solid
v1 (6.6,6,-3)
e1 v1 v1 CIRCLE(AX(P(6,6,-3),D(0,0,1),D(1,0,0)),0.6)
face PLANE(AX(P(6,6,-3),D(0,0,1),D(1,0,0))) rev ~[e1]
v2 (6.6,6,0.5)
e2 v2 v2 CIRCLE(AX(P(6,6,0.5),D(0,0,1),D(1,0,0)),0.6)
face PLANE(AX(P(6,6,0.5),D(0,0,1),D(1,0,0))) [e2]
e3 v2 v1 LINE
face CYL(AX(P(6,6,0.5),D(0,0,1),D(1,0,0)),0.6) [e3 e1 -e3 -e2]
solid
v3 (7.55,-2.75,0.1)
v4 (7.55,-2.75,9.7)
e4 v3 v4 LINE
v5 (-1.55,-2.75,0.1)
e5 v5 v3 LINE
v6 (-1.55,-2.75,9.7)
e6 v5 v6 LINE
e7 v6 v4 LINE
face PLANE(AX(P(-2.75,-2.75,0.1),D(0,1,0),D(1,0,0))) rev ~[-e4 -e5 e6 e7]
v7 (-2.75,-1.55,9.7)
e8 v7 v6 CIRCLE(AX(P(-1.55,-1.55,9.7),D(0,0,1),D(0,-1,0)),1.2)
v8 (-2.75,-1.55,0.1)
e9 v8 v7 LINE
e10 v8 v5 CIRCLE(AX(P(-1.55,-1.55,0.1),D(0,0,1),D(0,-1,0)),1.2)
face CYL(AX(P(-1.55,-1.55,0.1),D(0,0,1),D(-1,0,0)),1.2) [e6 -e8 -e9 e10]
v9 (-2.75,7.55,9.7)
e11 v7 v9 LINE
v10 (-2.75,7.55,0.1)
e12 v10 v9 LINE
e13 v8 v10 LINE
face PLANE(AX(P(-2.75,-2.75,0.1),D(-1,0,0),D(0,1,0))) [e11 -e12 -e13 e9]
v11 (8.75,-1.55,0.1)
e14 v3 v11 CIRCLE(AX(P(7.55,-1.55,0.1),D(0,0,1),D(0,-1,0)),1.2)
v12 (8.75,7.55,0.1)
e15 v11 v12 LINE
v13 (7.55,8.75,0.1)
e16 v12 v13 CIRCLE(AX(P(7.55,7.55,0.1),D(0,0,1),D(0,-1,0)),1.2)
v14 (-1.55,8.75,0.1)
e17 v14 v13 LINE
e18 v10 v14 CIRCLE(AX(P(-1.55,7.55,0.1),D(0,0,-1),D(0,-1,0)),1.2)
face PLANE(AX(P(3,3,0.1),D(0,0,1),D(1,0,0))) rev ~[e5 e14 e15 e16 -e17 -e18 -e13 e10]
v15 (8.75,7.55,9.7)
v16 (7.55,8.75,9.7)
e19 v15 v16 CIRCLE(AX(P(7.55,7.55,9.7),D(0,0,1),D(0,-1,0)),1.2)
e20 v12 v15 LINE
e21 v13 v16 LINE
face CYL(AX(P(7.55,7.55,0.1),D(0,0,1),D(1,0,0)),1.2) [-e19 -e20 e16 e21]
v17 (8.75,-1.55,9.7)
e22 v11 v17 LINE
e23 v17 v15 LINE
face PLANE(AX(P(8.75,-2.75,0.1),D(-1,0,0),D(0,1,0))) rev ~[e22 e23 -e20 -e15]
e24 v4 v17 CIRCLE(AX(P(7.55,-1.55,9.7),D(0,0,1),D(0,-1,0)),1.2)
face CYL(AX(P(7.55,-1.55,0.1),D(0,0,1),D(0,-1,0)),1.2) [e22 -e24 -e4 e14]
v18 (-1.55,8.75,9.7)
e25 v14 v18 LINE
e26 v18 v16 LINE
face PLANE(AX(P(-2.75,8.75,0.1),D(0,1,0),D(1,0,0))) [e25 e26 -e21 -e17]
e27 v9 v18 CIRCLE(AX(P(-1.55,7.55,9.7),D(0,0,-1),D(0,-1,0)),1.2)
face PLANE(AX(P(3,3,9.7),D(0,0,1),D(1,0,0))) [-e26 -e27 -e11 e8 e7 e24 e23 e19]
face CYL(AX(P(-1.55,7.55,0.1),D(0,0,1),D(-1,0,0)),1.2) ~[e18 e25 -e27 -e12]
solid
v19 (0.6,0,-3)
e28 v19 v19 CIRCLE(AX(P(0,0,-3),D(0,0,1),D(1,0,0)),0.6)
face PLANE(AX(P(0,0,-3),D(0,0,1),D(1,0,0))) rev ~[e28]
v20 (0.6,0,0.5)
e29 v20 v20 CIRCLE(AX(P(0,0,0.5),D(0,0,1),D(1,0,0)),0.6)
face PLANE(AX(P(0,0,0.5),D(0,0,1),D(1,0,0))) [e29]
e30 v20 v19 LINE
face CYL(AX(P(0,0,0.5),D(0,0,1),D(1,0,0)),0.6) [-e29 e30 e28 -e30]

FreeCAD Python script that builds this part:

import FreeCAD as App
import Part
import Sketcher
from FreeCAD import Vector


def edges_at(feature, points):
    """Names of the edges that pass closest to the given points."""
    edges = feature.Shape.Edges
    near = lambda p: min(range(len(edges)), key=lambda i: edges[i].distToShape(Part.Vertex(*p))[0])
    return sorted({f"Edge{near(p) + 1}" for p in points})

doc = App.newDocument("Part")
body = doc.addObject("PartDesign::Body", "Body")
body.AllowCompound = True

# Sketch on XY plane
sketch1 = body.newObject("Sketcher::SketchObject", "Sketch")
sketch1.AttachmentSupport = (doc.getObject("XY_Plane"), [""])
sketch1.MapMode = "FlatFace"
sketch1.AttachmentOffset = App.Placement(Vector(0, 0, 0.5), App.Rotation())
sketch1.addGeometry(Part.Circle(Vector(0, 0, 0), Vector(0, 0, 1), 0.6), False)
sketch1.addGeometry(Part.Circle(Vector(6, 6, 0), Vector(0, 0, 1), 0.6), False)
sketch1.addConstraint(Sketcher.Constraint("Coincident", 0, 3, -1, 1))
sketch1.addConstraint(Sketcher.Constraint("Equal", 0, 1))
sketch1.addConstraint(Sketcher.Constraint("Diameter", 0, 1.2))
sketch1.addConstraint(Sketcher.Constraint("DistanceX", -1, 1, 1, 3, 6.0))
sketch1.addConstraint(Sketcher.Constraint("DistanceY", -1, 1, 1, 3, 6.0))
pad1 = body.newObject("PartDesign::Pad", "Pad")
pad1.Profile = sketch1
pad1.Length = 3.5
pad1.Reversed = True
body2 = doc.addObject("PartDesign::Body", "Body001")

# Sketch on XY plane
sketch2 = body2.newObject("Sketcher::SketchObject", "Sketch001")
sketch2.AttachmentSupport = (doc.getObject("XY_Plane001"), [""])
sketch2.MapMode = "FlatFace"
sketch2.AttachmentOffset = App.Placement(Vector(0, 0, 0.1), App.Rotation())
sketch2.addGeometry(Part.LineSegment(Vector(-3, 9, 0), Vector(-3, -3, 0)), False)
sketch2.addGeometry(Part.LineSegment(Vector(-3, -3, 0), Vector(9, -3, 0)), False)
sketch2.addGeometry(Part.LineSegment(Vector(9, -3, 0), Vector(9, 9, 0)), False)
sketch2.addGeometry(Part.LineSegment(Vector(9, 9, 0), Vector(-3, 9, 0)), False)
sketch2.addConstraint(Sketcher.Constraint("Coincident", 0, 2, 1, 1))
sketch2.addConstraint(Sketcher.Constraint("Coincident", 1, 2, 2, 1))
sketch2.addConstraint(Sketcher.Constraint("Coincident", 2, 2, 3, 1))
sketch2.addConstraint(Sketcher.Constraint("Coincident", 3, 2, 0, 1))
sketch2.addConstraint(Sketcher.Constraint("Vertical", 0))
sketch2.addConstraint(Sketcher.Constraint("Horizontal", 1))
sketch2.addConstraint(Sketcher.Constraint("Vertical", 2))
sketch2.addConstraint(Sketcher.Constraint("Horizontal", 3))
sketch2.addConstraint(Sketcher.Constraint("Equal", 3, 0))
sketch2.addConstraint(Sketcher.Constraint("DistanceX", 1, 1, 1, 2, 11.5))
sketch2.addConstraint(Sketcher.Constraint("DistanceX", 0, 2, -1, 1, 2.75))
sketch2.addConstraint(Sketcher.Constraint("DistanceY", 0, 2, -1, 1, 2.75))
pad2 = body2.newObject("PartDesign::Pad", "Pad001")
pad2.Profile = sketch2
pad2.Length = 9.6
doc.recompute()

fillet = body2.newObject("PartDesign::Fillet", "Fillet")
fillet.Base = (pad2, edges_at(pad2, [
    (8.75, -2.75, 4.9),
    (8.75, 8.75, 4.9),
    (-2.75, -2.75, 4.9),
    (-2.75, 8.75, 4.9),
]))
fillet.Radius = 1.2

doc.recompute()
